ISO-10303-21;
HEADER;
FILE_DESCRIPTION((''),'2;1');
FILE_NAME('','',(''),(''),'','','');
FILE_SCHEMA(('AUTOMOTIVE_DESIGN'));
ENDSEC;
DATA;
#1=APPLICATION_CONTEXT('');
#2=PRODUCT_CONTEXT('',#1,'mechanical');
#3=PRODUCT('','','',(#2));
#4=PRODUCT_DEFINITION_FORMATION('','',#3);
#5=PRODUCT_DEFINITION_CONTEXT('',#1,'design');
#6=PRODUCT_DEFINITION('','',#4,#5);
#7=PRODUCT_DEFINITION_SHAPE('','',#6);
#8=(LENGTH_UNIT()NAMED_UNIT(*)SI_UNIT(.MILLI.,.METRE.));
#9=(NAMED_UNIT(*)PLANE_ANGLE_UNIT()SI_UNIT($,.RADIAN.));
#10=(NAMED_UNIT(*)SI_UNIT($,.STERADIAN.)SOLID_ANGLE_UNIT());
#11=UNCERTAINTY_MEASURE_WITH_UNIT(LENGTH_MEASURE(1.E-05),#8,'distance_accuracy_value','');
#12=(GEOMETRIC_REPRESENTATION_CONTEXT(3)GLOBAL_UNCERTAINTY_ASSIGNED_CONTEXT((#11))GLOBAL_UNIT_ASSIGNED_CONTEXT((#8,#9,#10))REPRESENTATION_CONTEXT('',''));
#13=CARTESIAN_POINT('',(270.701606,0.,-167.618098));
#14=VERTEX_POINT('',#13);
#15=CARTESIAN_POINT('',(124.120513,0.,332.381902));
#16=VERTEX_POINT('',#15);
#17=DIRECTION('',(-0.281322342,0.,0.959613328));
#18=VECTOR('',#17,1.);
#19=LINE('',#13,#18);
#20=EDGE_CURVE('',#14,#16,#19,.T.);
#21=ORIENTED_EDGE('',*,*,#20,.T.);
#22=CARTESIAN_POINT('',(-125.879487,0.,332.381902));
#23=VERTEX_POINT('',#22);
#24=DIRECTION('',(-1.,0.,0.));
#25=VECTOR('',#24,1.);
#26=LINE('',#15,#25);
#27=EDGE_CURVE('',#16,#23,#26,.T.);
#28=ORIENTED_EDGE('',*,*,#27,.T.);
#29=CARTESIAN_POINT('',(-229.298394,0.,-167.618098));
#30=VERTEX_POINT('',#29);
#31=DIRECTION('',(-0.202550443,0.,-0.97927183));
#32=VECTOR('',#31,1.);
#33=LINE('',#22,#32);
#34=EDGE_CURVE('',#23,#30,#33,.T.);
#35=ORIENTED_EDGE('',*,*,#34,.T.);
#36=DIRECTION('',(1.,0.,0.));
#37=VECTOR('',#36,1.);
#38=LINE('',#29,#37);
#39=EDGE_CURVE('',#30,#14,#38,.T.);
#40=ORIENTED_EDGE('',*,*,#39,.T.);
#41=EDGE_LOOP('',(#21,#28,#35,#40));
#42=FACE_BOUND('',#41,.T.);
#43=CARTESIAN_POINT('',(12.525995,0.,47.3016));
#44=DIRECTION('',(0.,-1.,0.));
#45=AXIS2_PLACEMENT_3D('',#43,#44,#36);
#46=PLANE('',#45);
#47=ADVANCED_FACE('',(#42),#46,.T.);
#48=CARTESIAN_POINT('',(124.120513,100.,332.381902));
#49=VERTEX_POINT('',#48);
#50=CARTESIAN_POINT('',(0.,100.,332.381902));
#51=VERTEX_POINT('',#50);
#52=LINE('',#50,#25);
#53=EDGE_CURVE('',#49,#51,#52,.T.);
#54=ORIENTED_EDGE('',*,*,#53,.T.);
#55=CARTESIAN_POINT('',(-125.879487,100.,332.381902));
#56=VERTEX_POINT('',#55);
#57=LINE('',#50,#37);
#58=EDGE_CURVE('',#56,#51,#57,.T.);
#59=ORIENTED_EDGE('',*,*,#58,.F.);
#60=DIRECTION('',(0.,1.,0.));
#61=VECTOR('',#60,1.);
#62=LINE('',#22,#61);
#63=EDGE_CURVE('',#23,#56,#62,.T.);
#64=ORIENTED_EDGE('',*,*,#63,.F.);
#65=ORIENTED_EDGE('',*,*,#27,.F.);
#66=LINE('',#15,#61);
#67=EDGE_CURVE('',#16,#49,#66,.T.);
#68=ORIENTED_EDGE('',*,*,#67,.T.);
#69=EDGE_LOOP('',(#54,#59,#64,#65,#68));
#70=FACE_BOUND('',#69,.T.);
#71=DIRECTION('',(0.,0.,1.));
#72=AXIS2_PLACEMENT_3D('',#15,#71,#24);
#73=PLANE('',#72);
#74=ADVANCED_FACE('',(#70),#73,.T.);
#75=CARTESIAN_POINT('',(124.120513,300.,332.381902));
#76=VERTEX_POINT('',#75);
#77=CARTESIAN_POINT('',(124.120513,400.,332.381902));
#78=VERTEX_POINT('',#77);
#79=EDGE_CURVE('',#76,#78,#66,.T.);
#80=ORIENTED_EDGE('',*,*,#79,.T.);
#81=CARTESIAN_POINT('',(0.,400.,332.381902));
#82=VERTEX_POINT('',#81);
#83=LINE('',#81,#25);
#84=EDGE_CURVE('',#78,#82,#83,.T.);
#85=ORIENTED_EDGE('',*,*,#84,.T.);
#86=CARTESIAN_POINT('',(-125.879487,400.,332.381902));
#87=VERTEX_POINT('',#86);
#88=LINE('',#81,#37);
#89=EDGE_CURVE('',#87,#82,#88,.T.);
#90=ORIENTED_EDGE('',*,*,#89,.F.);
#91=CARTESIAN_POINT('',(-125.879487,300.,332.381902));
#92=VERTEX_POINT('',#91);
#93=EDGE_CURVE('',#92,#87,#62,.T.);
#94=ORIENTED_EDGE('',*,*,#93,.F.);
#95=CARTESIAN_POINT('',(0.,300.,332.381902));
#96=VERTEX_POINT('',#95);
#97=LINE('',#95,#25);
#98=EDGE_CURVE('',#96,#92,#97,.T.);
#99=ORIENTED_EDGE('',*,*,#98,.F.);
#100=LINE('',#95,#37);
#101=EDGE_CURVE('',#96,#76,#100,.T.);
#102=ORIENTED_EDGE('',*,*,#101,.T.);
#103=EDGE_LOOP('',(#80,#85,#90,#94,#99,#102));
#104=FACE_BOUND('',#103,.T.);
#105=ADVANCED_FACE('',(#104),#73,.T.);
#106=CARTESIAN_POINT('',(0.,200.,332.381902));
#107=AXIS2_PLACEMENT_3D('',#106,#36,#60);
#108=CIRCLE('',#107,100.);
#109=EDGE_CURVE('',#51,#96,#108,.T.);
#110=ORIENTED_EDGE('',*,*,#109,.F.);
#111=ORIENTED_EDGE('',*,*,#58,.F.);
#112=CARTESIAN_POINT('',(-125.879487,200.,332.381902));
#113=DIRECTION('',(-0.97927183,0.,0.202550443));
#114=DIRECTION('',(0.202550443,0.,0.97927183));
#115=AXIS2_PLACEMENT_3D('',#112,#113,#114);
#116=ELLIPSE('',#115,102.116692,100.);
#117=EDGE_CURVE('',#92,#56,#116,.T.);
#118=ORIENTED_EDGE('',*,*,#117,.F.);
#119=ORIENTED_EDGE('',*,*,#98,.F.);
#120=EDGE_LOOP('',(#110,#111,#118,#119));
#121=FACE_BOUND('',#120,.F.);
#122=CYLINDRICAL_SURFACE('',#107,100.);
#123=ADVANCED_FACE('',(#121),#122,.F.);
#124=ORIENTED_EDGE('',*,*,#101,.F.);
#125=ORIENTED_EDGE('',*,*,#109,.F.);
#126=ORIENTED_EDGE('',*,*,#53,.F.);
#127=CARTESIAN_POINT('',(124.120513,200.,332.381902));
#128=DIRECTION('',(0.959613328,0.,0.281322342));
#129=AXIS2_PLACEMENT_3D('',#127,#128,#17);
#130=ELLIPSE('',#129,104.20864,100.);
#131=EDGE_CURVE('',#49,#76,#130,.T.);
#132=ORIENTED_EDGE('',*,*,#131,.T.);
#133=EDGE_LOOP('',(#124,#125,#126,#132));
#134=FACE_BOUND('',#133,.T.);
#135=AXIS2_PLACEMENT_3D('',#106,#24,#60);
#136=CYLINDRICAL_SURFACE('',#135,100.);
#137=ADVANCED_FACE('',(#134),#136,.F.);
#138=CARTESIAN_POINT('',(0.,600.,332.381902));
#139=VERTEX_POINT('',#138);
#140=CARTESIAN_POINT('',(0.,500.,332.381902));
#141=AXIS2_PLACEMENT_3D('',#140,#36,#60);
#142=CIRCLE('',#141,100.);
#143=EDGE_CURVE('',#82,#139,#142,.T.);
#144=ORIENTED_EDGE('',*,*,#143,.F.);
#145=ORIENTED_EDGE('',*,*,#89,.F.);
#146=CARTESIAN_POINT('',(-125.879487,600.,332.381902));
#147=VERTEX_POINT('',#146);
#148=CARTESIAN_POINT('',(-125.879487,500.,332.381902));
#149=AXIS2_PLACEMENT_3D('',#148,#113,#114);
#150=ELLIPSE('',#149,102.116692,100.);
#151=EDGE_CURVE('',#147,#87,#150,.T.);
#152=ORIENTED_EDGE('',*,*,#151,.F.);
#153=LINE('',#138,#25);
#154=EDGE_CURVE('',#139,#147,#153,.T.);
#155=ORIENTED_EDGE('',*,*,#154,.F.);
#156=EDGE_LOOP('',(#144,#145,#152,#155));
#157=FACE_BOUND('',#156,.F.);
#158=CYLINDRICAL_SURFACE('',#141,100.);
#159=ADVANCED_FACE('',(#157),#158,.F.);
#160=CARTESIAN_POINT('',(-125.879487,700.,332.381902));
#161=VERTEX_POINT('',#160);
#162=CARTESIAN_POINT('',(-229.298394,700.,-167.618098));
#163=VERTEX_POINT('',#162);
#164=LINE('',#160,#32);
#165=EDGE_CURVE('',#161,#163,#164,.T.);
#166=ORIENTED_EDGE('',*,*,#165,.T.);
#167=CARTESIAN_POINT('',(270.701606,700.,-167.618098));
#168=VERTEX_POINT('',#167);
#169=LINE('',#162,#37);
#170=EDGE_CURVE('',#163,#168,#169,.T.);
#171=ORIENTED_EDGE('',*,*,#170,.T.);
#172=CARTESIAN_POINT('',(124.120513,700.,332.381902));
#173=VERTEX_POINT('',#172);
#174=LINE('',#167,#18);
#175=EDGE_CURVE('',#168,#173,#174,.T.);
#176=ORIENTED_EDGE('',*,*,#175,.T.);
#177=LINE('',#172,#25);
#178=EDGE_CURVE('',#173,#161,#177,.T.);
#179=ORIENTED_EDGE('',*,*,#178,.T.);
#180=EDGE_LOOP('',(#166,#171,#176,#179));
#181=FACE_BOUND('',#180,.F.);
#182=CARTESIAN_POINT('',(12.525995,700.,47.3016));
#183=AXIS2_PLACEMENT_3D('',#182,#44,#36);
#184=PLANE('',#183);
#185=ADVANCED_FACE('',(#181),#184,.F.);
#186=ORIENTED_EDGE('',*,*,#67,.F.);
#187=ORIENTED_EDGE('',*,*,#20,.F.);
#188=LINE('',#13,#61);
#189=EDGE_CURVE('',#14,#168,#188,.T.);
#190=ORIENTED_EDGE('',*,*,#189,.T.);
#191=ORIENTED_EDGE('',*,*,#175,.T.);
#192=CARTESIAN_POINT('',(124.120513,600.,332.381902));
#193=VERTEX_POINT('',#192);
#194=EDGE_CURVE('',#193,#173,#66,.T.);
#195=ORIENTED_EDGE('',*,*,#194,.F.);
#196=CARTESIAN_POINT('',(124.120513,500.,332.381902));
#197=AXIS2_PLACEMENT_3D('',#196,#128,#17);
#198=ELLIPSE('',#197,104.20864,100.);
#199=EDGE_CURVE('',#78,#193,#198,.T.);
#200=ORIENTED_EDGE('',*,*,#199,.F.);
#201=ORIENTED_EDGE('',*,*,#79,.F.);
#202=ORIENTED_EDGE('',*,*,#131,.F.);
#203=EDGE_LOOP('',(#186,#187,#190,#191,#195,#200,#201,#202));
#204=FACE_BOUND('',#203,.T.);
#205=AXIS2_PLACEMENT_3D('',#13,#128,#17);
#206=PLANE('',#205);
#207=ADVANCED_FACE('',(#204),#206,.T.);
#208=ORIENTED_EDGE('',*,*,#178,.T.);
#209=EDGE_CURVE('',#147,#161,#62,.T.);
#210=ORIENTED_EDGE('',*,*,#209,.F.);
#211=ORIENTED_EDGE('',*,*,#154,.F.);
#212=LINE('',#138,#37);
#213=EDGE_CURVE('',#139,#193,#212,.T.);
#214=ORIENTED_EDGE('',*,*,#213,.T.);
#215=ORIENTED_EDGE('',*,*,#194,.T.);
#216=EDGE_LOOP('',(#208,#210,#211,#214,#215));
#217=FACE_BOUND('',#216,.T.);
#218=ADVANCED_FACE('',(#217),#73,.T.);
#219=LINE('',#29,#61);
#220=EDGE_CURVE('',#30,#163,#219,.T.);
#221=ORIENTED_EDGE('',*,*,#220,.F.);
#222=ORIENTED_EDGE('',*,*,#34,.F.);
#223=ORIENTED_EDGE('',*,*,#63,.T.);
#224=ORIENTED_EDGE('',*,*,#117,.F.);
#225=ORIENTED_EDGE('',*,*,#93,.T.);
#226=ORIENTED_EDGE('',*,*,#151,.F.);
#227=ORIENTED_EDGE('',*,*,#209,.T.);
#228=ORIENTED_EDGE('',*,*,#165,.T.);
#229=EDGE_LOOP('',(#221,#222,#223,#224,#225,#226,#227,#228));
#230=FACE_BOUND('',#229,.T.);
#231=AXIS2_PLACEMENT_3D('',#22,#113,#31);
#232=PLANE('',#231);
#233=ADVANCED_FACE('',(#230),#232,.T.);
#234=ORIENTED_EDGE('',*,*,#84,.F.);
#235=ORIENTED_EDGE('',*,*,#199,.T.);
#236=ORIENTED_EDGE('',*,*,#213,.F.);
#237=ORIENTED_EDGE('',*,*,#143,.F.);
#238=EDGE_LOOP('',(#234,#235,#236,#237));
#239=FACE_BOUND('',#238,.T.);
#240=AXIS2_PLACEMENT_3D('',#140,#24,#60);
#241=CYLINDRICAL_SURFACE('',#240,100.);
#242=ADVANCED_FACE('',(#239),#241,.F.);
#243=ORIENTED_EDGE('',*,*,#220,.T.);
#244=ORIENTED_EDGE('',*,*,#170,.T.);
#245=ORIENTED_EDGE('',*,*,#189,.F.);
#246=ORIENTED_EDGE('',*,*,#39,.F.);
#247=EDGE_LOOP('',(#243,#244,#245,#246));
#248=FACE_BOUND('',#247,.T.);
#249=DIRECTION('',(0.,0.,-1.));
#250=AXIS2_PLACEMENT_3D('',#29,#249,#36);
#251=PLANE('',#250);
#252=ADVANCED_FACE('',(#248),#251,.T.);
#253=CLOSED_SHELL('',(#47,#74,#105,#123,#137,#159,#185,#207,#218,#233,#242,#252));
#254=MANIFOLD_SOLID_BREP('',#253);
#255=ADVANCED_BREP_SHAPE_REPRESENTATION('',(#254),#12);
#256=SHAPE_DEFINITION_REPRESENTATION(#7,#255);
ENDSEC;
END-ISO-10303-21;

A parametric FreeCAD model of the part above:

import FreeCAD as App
import Part
import Sketcher
from FreeCAD import Vector
Q = App.Units.Quantity

doc = App.newDocument("Part")
body = doc.addObject("PartDesign::Body", "Body")

# Sketch on XZ plane
sketch1 = body.newObject("Sketcher::SketchObject", "Sketch")
sketch1.AttachmentSupport = (doc.getObject("XZ_Plane"), [""])
sketch1.MapMode = "FlatFace"
sketch1.addGeometry(Part.LineSegment(Vector(271, -168, 0), Vector(124, 332, 0)), False)
sketch1.addGeometry(Part.LineSegment(Vector(124, 332, 0), Vector(-126, 332, 0)), False)
sketch1.addGeometry(Part.LineSegment(Vector(-126, 332, 0), Vector(-229, -168, 0)), False)
sketch1.addGeometry(Part.LineSegment(Vector(-229, -168, 0), Vector(271, -168, 0)), False)
sketch1.addConstraint(Sketcher.Constraint("Coincident", 0, 2, 1, 1))
sketch1.addConstraint(Sketcher.Constraint("Coincident", 1, 2, 2, 1))
sketch1.addConstraint(Sketcher.Constraint("Coincident", 2, 2, 3, 1))
sketch1.addConstraint(Sketcher.Constraint("Coincident", 3, 2, 0, 1))
sketch1.addConstraint(Sketcher.Constraint("Horizontal", 1))
sketch1.addConstraint(Sketcher.Constraint("Horizontal", 3))
sketch1.addConstraint(Sketcher.Constraint("DistanceX", 1, 2, 1, 1, Q("250 mm")))
sketch1.addConstraint(Sketcher.Constraint("DistanceX", 3, 1, 3, 2, Q("500 mm")))
sketch1.addConstraint(Sketcher.Constraint("DistanceY", 2, 2, 1, 2, Q("500 mm")))
sketch1.addConstraint(Sketcher.Constraint("Distance", 0, Q("521.043201 mm")))
sketch1.addConstraint(Sketcher.Constraint("DistanceY", -1, 1, 0, 2, Q("332.381902 mm")))
sketch1.addConstraint(Sketcher.Constraint("DistanceX", -1, 1, 0, 2, Q("124.120513 mm")))
pad1 = body.newObject("PartDesign::Pad", "Pad")
pad1.Profile = sketch1
pad1.Length = 700
pad1.Reversed = True

# Sketch on YZ plane
sketch2 = body.newObject("Sketcher::SketchObject", "Sketch001")
sketch2.AttachmentSupport = (doc.getObject("YZ_Plane"), [""])
sketch2.MapMode = "FlatFace"
sketch2.addGeometry(Part.Circle(Vector(200, 332, 0), Vector(0, 0, 1), 100), False)
sketch2.addGeometry(Part.Circle(Vector(500, 332, 0), Vector(0, 0, 1), 100), False)
sketch2.addConstraint(Sketcher.Constraint("Equal", 0, 1))
sketch2.addConstraint(Sketcher.Constraint("Horizontal", 0, 3, 1, 3))
sketch2.addConstraint(Sketcher.Constraint("Diameter", 0, Q("200 mm")))
sketch2.addConstraint(Sketcher.Constraint("DistanceX", -1, 1, 0, 3, Q("200 mm")))
sketch2.addConstraint(Sketcher.Constraint("DistanceX", -1, 1, 1, 3, Q("500 mm")))
sketch2.addConstraint(Sketcher.Constraint("DistanceY", -1, 1, 0, 3, Q("332.381902 mm")))
pocket1 = body.newObject("PartDesign::Pocket", "Pocket")
pocket1.Profile = sketch2
pocket1.Type = "ThroughAll"
pocket1.Midplane = True

doc.recompute()
